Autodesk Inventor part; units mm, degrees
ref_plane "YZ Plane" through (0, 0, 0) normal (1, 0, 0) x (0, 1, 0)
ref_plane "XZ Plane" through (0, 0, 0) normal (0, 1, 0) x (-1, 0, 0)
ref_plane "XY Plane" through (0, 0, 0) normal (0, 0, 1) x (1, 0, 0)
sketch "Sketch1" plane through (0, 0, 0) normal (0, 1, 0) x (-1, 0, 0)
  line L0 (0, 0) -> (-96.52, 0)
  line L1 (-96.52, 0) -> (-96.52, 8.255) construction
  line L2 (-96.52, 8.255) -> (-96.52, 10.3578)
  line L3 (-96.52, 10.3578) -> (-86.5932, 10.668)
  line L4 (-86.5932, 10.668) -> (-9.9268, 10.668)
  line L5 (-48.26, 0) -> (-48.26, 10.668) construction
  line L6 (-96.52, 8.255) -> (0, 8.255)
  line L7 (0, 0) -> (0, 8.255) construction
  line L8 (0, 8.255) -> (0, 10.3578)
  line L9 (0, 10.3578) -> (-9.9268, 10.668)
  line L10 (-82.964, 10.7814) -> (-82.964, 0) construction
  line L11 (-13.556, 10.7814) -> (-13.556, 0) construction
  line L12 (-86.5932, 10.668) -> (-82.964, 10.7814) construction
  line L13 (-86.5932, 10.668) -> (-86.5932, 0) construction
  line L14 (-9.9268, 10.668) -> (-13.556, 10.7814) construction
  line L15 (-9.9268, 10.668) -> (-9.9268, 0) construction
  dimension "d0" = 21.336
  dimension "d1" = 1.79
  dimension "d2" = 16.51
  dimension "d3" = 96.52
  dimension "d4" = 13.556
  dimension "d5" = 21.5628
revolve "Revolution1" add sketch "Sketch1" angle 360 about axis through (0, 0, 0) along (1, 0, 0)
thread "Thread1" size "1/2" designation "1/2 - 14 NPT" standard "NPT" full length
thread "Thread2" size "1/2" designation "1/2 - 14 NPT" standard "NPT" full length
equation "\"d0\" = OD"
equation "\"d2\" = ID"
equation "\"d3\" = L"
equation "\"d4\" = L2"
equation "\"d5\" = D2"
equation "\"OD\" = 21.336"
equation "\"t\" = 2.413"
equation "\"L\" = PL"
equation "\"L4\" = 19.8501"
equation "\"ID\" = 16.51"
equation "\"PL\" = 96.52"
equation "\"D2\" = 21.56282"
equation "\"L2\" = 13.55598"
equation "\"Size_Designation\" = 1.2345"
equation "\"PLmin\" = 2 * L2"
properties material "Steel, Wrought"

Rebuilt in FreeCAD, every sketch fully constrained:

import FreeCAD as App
import Part
import Sketcher

V = App.Vector
Q = App.Units.Quantity

doc = App.newDocument("Part")
body = doc.addObject("PartDesign::Body", "Body")

# Sketch on XZ plane
sketch1 = doc.addObject("Sketcher::SketchObject", "Sketch")
body.addObject(sketch1)
sketch1.AttachmentSupport = (doc.XZ_Plane, [""])
sketch1.MapMode = "FlatFace"
sketch1.addGeometry([
    Part.LineSegment(V(96.5, 10.4, 0), V(96.5, 8.3, 0)),  # 0
    Part.LineSegment(V(96.5, 8.3, 0), V(0, 8.3, 0)),  # 1
    Part.LineSegment(V(0, 8.3, 0), V(0, 10.4, 0)),  # 2
    Part.LineSegment(V(0, 10.4, 0), V(9.9, 10.7, 0)),  # 3
    Part.LineSegment(V(9.9, 10.7, 0), V(86.6, 10.7, 0)),  # 4
    Part.LineSegment(V(86.6, 10.7, 0), V(96.5, 10.4, 0)),  # 5
], False)
sketch1.addConstraint([
    Sketcher.Constraint("Coincident", 0, 2, 1, 1),
    Sketcher.Constraint("Coincident", 1, 2, 2, 1),
    Sketcher.Constraint("Coincident", 2, 2, 3, 1),
    Sketcher.Constraint("Coincident", 3, 2, 4, 1),
    Sketcher.Constraint("Coincident", 4, 2, 5, 1),
    Sketcher.Constraint("Coincident", 5, 2, 0, 1),
    Sketcher.Constraint("Vertical", 0),
    Sketcher.Constraint("Horizontal", 1),
    Sketcher.Constraint("Vertical", 2),
    Sketcher.Constraint("Horizontal", 4),
    Sketcher.Constraint("PointOnObject", 1, 2, -2),
    Sketcher.Constraint("Horizontal", 2, 2, 5, 2),
    Sketcher.Constraint("Equal", 3, 5),
    Sketcher.Constraint("DistanceX", 1, 2, 1, 1, Q("3.8 in")),
    Sketcher.Constraint("Angle", 3, Q("1.7898 deg")),
    Sketcher.Constraint("DistanceY", -1, 1, 3, 2, Q("0.42 in")),
    Sketcher.Constraint("Distance", 3, Q("0.391 in")),
    Sketcher.Constraint("DistanceY", -1, 1, 0, 2, Q("0.325 in")),
])
revolution = doc.addObject("PartDesign::Revolution", "Revolution")
body.addObject(revolution)
revolution.Profile = sketch1
revolution.ReferenceAxis = (sketch1, ["H_Axis"])
revolution.Angle = 360

doc.recompute()
